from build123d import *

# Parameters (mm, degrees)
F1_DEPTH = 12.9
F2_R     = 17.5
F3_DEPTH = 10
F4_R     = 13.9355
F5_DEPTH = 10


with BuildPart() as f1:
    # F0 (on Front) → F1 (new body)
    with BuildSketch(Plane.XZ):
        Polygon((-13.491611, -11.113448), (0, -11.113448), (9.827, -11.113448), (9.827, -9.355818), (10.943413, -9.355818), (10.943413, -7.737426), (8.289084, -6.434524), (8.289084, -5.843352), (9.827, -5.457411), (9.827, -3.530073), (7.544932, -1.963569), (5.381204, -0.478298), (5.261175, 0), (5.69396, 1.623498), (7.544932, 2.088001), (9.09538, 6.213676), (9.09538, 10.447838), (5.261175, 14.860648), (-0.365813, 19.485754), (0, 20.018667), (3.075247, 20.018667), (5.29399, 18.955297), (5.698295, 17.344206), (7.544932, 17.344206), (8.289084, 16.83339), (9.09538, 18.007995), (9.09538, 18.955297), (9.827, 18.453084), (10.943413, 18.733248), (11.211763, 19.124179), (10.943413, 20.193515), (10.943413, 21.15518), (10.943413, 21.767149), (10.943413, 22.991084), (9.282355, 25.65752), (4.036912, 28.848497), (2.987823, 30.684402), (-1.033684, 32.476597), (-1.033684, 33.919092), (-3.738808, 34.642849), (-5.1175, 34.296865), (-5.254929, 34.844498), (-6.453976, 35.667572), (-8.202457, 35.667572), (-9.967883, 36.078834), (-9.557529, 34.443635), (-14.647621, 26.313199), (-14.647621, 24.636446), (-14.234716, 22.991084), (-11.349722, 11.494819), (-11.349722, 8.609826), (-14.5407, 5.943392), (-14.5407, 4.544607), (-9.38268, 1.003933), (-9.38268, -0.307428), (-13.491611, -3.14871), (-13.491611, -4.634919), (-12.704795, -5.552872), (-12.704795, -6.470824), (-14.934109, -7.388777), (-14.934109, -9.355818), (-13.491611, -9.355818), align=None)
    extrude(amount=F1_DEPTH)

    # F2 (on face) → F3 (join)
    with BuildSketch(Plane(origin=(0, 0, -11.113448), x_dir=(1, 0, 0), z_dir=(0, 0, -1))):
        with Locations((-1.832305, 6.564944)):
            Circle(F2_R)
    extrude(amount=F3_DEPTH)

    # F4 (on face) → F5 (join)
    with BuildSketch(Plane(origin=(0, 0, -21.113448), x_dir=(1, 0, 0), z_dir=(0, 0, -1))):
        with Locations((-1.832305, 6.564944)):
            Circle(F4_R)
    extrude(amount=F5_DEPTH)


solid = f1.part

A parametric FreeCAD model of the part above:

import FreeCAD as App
import Part
import Sketcher

V = App.Vector
Q = App.Units.Quantity


def add_polygon(sketch, points):
    """Adds a closed chain of lines whose ends are joined by coincident constraints."""
    first, n = sketch.GeometryCount, len(points)
    for a, b in zip(points, points[1:] + points[:1]):
        sketch.addGeometry(Part.LineSegment(App.Vector(*a, 0), App.Vector(*b, 0)), False)
    for i in range(n):
        sketch.addConstraint(Sketcher.Constraint("Coincident", first + i, 2, first + (i + 1) % n, 1))

doc = App.newDocument("Part")
params = doc.addObject("Spreadsheet::Sheet", "Params")
for row, (alias, value) in enumerate([
    ("pad1_length", "12.9 mm"),
    ("sketch2_diameter", "35 mm"),
    ("pad2_length", "10 mm"),
    ("pad3_length", "10 mm"),
], start=1):
    params.set(f"A{row}", alias)
    params.set(f"B{row}", "=" + value)
    params.setAlias(f"B{row}", alias)

body = doc.addObject("PartDesign::Body", "Body")

# Sketch on XZ plane
sketch1 = body.newObject("Sketcher::SketchObject", "Sketch")
sketch1.AttachmentSupport = (doc.getObject("XZ_Plane"), [""])
sketch1.MapMode = "FlatFace"
add_polygon(sketch1, [(-13.491611, -11.113448), (9.827, -11.113448), (9.827, -9.355818), (10.943413, -9.355818), (10.943413, -7.737426), (8.289084, -6.434524), (8.289084, -5.843352), (9.827, -5.457411), (9.827, -3.530073), (7.544932, -1.963569), (5.381204, -0.478298), (5.261175, 0), (5.69396, 1.623498), (7.544932, 2.088001), (9.09538, 6.213676), (9.09538, 10.447838), (5.261175, 14.860648), (-0.365813, 19.485754), (0, 20.018667), (3.075247, 20.018667), (5.29399, 18.955297), (5.698295, 17.344206), (7.544932, 17.344206), (8.289084, 16.83339), (9.09538, 18.007995), (9.09538, 18.955297), (9.827, 18.453084), (10.943413, 18.733248), (11.211763, 19.124179), (10.943413, 20.193515), (10.943413, 22.991084), (9.282355, 25.65752), (4.036912, 28.848497), (2.987823, 30.684402), (-1.033684, 32.476597), (-1.033684, 33.919092), (-3.738808, 34.642849), (-5.1175, 34.296865), (-5.254929, 34.844498), (-6.453976, 35.667572), (-8.202457, 35.667572), (-9.967883, 36.078834), (-9.557529, 34.443635), (-14.647621, 26.313199), (-14.647621, 24.636446), (-14.234716, 22.991084), (-11.349722, 11.494819), (-11.349722, 8.609826), (-14.5407, 5.943392), (-14.5407, 4.544607), (-9.38268, 1.003933), (-9.38268, -0.307428), (-13.491611, -3.14871), (-13.491611, -4.634919), (-12.704795, -5.552872), (-12.704795, -6.470824), (-14.934109, -7.388777), (-14.934109, -9.355818), (-13.491611, -9.355818)])  # lines 0-58
sketch1.addConstraint(Sketcher.Constraint("Horizontal", 0))
sketch1.addConstraint(Sketcher.Constraint("Vertical", 1))
sketch1.addConstraint(Sketcher.Constraint("Horizontal", 2))
sketch1.addConstraint(Sketcher.Constraint("Vertical", 3))
sketch1.addConstraint(Sketcher.Constraint("Vertical", 5))
sketch1.addConstraint(Sketcher.Constraint("Vertical", 7))
sketch1.addConstraint(Sketcher.Constraint("Vertical", 14))
sketch1.addConstraint(Sketcher.Constraint("Horizontal", 18))
sketch1.addConstraint(Sketcher.Constraint("Horizontal", 21))
sketch1.addConstraint(Sketcher.Constraint("Vertical", 24))
sketch1.addConstraint(Sketcher.Constraint("Vertical", 29))
sketch1.addConstraint(Sketcher.Constraint("Vertical", 34))
sketch1.addConstraint(Sketcher.Constraint("Horizontal", 39))
sketch1.addConstraint(Sketcher.Constraint("Vertical", 43))
sketch1.addConstraint(Sketcher.Constraint("Vertical", 46))
sketch1.addConstraint(Sketcher.Constraint("Vertical", 48))
sketch1.addConstraint(Sketcher.Constraint("Vertical", 50))
sketch1.addConstraint(Sketcher.Constraint("Vertical", 52))
sketch1.addConstraint(Sketcher.Constraint("Vertical", 54))
sketch1.addConstraint(Sketcher.Constraint("Vertical", 56))
sketch1.addConstraint(Sketcher.Constraint("Horizontal", 57))
sketch1.addConstraint(Sketcher.Constraint("Vertical", 58))
sketch1.addConstraint(Sketcher.Constraint("PointOnObject", 10, 2, -1))
sketch1.addConstraint(Sketcher.Constraint("PointOnObject", 17, 2, -2))
sketch1.addConstraint(Sketcher.Constraint("DistanceX", -1, 1, 0, 2, Q("9.827 mm")))
sketch1.addConstraint(Sketcher.Constraint("DistanceX", -1, 1, 6, 2, Q("9.827 mm")))
sketch1.addConstraint(Sketcher.Constraint("DistanceY", -1, 1, 12, 2, Q("2.088001 mm")))
sketch1.addConstraint(Sketcher.Constraint("DistanceX", -1, 1, 25, 2, Q("9.827 mm")))
sketch1.addConstraint(Sketcher.Constraint("DistanceY", 25, 2, 29, 2, Q("4.538 mm")))
sketch1.addConstraint(Sketcher.Constraint("Distance", 19, Q("2.460402 mm")))
sketch1.addConstraint(Sketcher.Constraint("DistanceX", 0, 1, 0, 2, Q("23.318611 mm")))
sketch1.addConstraint(Sketcher.Constraint("DistanceX", 39, 2, 39, 1, Q("1.748481 mm")))
sketch1.addConstraint(Sketcher.Constraint("DistanceY", 1, 1, 1, 2, Q("1.75763 mm")))
sketch1.addConstraint(Sketcher.Constraint("DistanceY", 3, 1, 3, 2, Q("1.618392 mm")))
sketch1.addConstraint(Sketcher.Constraint("DistanceY", 5, 1, 5, 2, Q("0.591172 mm")))
sketch1.addConstraint(Sketcher.Constraint("DistanceY", 29, 1, 29, 2, Q("2.797569 mm")))
sketch1.addConstraint(Sketcher.Constraint("DistanceY", 50, 2, 50, 1, Q("1.311361 mm")))
sketch1.addConstraint(Sketcher.Constraint("DistanceY", 52, 2, 52, 1, Q("1.486209 mm")))
sketch1.addConstraint(Sketcher.Constraint("DistanceY", 56, 2, 56, 1, Q("1.967041 mm")))
sketch1.addConstraint(Sketcher.Constraint("DistanceY", 58, 2, 58, 1, Q("1.75763 mm")))
sketch1.addConstraint(Sketcher.Constraint("DistanceY", -1, 1, 11, 2, Q("1.623498 mm")))
sketch1.addConstraint(Sketcher.Constraint("DistanceY", -1, 1, 32, 2, Q("30.684402 mm")))
sketch1.addConstraint(Sketcher.Constraint("DistanceX", 36, 2, -1, 1, Q("5.1175 mm")))
sketch1.addConstraint(Sketcher.Constraint("DistanceY", -1, 1, 37, 2, Q("34.844498 mm")))
sketch1.addConstraint(Sketcher.Constraint("DistanceY", -1, 1, 42, 2, Q("26.313199 mm")))
sketch1.addConstraint(Sketcher.Constraint("DistanceX", 47, 2, -1, 1, Q("14.5407 mm")))
sketch1.addConstraint(Sketcher.Constraint("DistanceY", 9, 2, 12, 2, Q("2.566299 mm")))
sketch1.addConstraint(Sketcher.Constraint("DistanceX", 31, 2, 29, 2, Q("6.906501 mm")))
sketch1.addConstraint(Sketcher.Constraint("DistanceY", 19, 2, 31, 2, Q("9.8932 mm")))
sketch1.addConstraint(Sketcher.Constraint("DistanceY", 31, 2, 33, 2, Q("3.6281 mm")))
sketch1.addConstraint(Sketcher.Constraint("DistanceY", 33, 2, 37, 2, Q("2.367901 mm")))
sketch1.addConstraint(Sketcher.Constraint("DistanceY", 41, 2, 40, 2, Q("1.635199 mm")))
sketch1.addConstraint(Sketcher.Constraint("DistanceX", 41, 2, 37, 2, Q("4.3026 mm")))
sketch1.addConstraint(Sketcher.Constraint("DistanceX", 43, 2, 45, 2, Q("3.297899 mm")))
sketch1.addConstraint(Sketcher.Constraint("DistanceY", 56, 2, 52, 2, Q("4.720899 mm")))
sketch1.addConstraint(Sketcher.Constraint("Distance", 4, Q("2.956859 mm")))
sketch1.addConstraint(Sketcher.Constraint("Distance", 8, Q("2.76799 mm")))
sketch1.addConstraint(Sketcher.Constraint("Distance", 10, Q("0.493129 mm")))
sketch1.addConstraint(Sketcher.Constraint("Distance", 13, Q("4.40739 mm")))
sketch1.addConstraint(Sketcher.Constraint("Distance", 16, Q("7.283859 mm")))
sketch1.addConstraint(Sketcher.Constraint("Distance", 26, Q("1.15103 mm")))
sketch1.addConstraint(Sketcher.Constraint("Distance", 27, Q("0.474172 mm")))
sketch1.addConstraint(Sketcher.Constraint("Distance", 31, Q("6.139789 mm")))
sketch1.addConstraint(Sketcher.Constraint("Distance", 33, Q("4.402781 mm")))
sketch1.addConstraint(Sketcher.Constraint("Distance", 35, Q("2.800271 mm")))
sketch1.addConstraint(Sketcher.Constraint("Distance", 36, Q("1.421442 mm")))
sketch1.addConstraint(Sketcher.Constraint("Distance", 38, Q("1.454361 mm")))
sketch1.addConstraint(Sketcher.Constraint("Distance", 44, Q("1.69638 mm")))
sketch1.addConstraint(Sketcher.Constraint("Distance", 47, Q("4.15839 mm")))
sketch1.addConstraint(Sketcher.Constraint("Distance", 49, Q("6.25632 mm")))
sketch1.addConstraint(Sketcher.Constraint("Distance", 55, Q("2.410908 mm")))
sketch1.addConstraint(Sketcher.Constraint("DistanceX", 2, 1, 2, 2, Q("1.116413 mm")))
sketch1.addConstraint(Sketcher.Constraint("DistanceX", 18, 1, 18, 2, Q("3.075247 mm")))
sketch1.addConstraint(Sketcher.Constraint("DistanceX", 21, 1, 21, 2, Q("1.846637 mm")))
sketch1.addConstraint(Sketcher.Constraint("DistanceX", 57, 1, 57, 2, Q("1.442498 mm")))
sketch1.addConstraint(Sketcher.Constraint("DistanceY", 7, 1, 7, 2, Q("1.927338 mm")))
sketch1.addConstraint(Sketcher.Constraint("DistanceY", 14, 1, 14, 2, Q("4.234162 mm")))
sketch1.addConstraint(Sketcher.Constraint("DistanceY", 24, 1, 24, 2, Q("0.947302 mm")))
sketch1.addConstraint(Sketcher.Constraint("DistanceY", 34, 1, 34, 2, Q("1.442495 mm")))
sketch1.addConstraint(Sketcher.Constraint("DistanceY", 43, 2, 43, 1, Q("1.676753 mm")))
sketch1.addConstraint(Sketcher.Constraint("DistanceY", 46, 2, 46, 1, Q("2.884993 mm")))
sketch1.addConstraint(Sketcher.Constraint("DistanceY", 48, 2, 48, 1, Q("1.398785 mm")))
sketch1.addConstraint(Sketcher.Constraint("DistanceY", 54, 2, 54, 1, Q("0.917952 mm")))
sketch1.addConstraint(Sketcher.Constraint("DistanceY", 6, 2, -1, 1, Q("5.457411 mm")))
sketch1.addConstraint(Sketcher.Constraint("DistanceY", 8, 2, -1, 1, Q("1.963569 mm")))
sketch1.addConstraint(Sketcher.Constraint("DistanceX", -1, 1, 11, 2, Q("5.69396 mm")))
sketch1.addConstraint(Sketcher.Constraint("DistanceX", -1, 1, 13, 2, Q("9.09538 mm")))
sketch1.addConstraint(Sketcher.Constraint("DistanceY", -1, 1, 14, 2, Q("10.447838 mm")))
sketch1.addConstraint(Sketcher.Constraint("DistanceX", -1, 1, 19, 2, Q("5.29399 mm")))
sketch1.addConstraint(Sketcher.Constraint("DistanceY", -1, 1, 22, 2, Q("16.83339 mm")))
sketch1.addConstraint(Sketcher.Constraint("DistanceX", -1, 1, 23, 2, Q("9.09538 mm")))
sketch1.addConstraint(Sketcher.Constraint("DistanceY", -1, 1, 27, 2, Q("19.124179 mm")))
sketch1.addConstraint(Sketcher.Constraint("DistanceY", -1, 1, 30, 2, Q("25.65752 mm")))
sketch1.addConstraint(Sketcher.Constraint("DistanceX", 35, 2, -1, 1, Q("3.738808 mm")))
sketch1.addConstraint(Sketcher.Constraint("DistanceY", -1, 1, 35, 2, Q("34.642849 mm")))
sketch1.addConstraint(Sketcher.Constraint("DistanceX", 37, 2, -1, 1, Q("5.254929 mm")))
sketch1.addConstraint(Sketcher.Constraint("DistanceX", 42, 2, -1, 1, Q("14.647621 mm")))
sketch1.addConstraint(Sketcher.Constraint("DistanceY", -1, 1, 45, 2, Q("11.494819 mm")))
sketch1.addConstraint(Sketcher.Constraint("DistanceX", 49, 2, -1, 1, Q("9.38268 mm")))
sketch1.addConstraint(Sketcher.Constraint("DistanceX", 51, 2, -1, 1, Q("13.491611 mm")))
sketch1.addConstraint(Sketcher.Constraint("DistanceY", 51, 2, -1, 1, Q("3.14871 mm")))
sketch1.addConstraint(Sketcher.Constraint("DistanceY", 53, 2, -1, 1, Q("5.552872 mm")))
sketch1.addConstraint(Sketcher.Constraint("DistanceX", 4, 2, 3, 2, Q("2.654329 mm")))
sketch1.addConstraint(Sketcher.Constraint("DistanceX", 9, 2, 5, 2, Q("2.90788 mm")))
sketch1.addConstraint(Sketcher.Constraint("DistanceY", 14, 2, 15, 2, Q("4.41281 mm")))
sketch1.addConstraint(Sketcher.Constraint("DistanceX", 16, 2, 18, 2, Q("3.44106 mm")))
sketch1.addConstraint(Sketcher.Constraint("DistanceY", 20, 2, 19, 2, Q("1.611091 mm")))
sketch1.addConstraint(Sketcher.Constraint("DistanceX", 15, 2, 20, 2, Q("0.43712 mm")))
sketch1.addConstraint(Sketcher.Constraint("DistanceY", 20, 2, 16, 2, Q("2.141548 mm")))
sketch1.addConstraint(Sketcher.Constraint("DistanceX", 20, 2, 22, 2, Q("2.590789 mm")))
sketch1.addConstraint(Sketcher.Constraint("DistanceY", 21, 2, 23, 2, Q("0.663789 mm")))
sketch1.addConstraint(Sketcher.Constraint("DistanceY", 23, 2, 25, 2, Q("0.445089 mm")))
sketch1.addConstraint(Sketcher.Constraint("DistanceY", 26, 2, 24, 2, Q("0.222049 mm")))
sketch1.addConstraint(Sketcher.Constraint("DistanceX", 28, 2, 27, 2, Q("0.26835 mm")))
sketch1.addConstraint(Sketcher.Constraint("DistanceY", 34, 2, 38, 2, Q("1.74848 mm")))
sketch1.addConstraint(Sketcher.Constraint("DistanceY", 36, 2, 40, 2, Q("1.781969 mm")))
sketch1.addConstraint(Sketcher.Constraint("DistanceY", 44, 2, 43, 2, Q("1.645362 mm")))
sketch1.addConstraint(Sketcher.Constraint("Distance", 40, Q("1.812696 mm")))
pad1 = body.newObject("PartDesign::Pad", "Pad")
pad1.Profile = sketch1
pad1.setExpression("Length", "Params.pad1_length")

# Sketch on XY plane
sketch2 = body.newObject("Sketcher::SketchObject", "Sketch001")
sketch2.AttachmentSupport = (doc.getObject("XY_Plane"), [""])
sketch2.MapMode = "FlatFace"
sketch2.AttachmentOffset = App.Placement(V(0, 0, -11.113448), App.Rotation())
sketch2.addGeometry(Part.Circle(V(-1.832305, -6.564944, 0), V(0, 0, 1), 17.5), False)
sketch2.addConstraint(Sketcher.Constraint("Diameter", 0, Q("35 mm")))
sketch2.addConstraint(Sketcher.Constraint("DistanceX", 0, 3, -1, 1, Q("1.832305 mm")))
sketch2.addConstraint(Sketcher.Constraint("DistanceY", 0, 3, -1, 1, Q("6.564944 mm")))
sketch2.setExpression("Constraints[0]", "Params.sketch2_diameter")
pad2 = body.newObject("PartDesign::Pad", "Pad001")
pad2.Profile = sketch2
pad2.setExpression("Length", "Params.pad2_length")
pad2.Reversed = True

# Sketch on XY plane
sketch3 = body.newObject("Sketcher::SketchObject", "Sketch002")
sketch3.AttachmentSupport = (doc.getObject("XY_Plane"), [""])
sketch3.MapMode = "FlatFace"
sketch3.AttachmentOffset = App.Placement(V(0, 0, -21.113448), App.Rotation())
sketch3.addGeometry(Part.Circle(V(-1.832305, -6.564944, 0), V(0, 0, 1), 13.9355), False)
sketch3.addConstraint(Sketcher.Constraint("Diameter", 0, Q("27.871 mm")))
sketch3.addConstraint(Sketcher.Constraint("DistanceX", 0, 3, -1, 1, Q("1.832305 mm")))
sketch3.addConstraint(Sketcher.Constraint("DistanceY", 0, 3, -1, 1, Q("6.564944 mm")))
pad3 = body.newObject("PartDesign::Pad", "Pad002")
pad3.Profile = sketch3
pad3.setExpression("Length", "Params.pad3_length")
pad3.Reversed = True

doc.recompute()
